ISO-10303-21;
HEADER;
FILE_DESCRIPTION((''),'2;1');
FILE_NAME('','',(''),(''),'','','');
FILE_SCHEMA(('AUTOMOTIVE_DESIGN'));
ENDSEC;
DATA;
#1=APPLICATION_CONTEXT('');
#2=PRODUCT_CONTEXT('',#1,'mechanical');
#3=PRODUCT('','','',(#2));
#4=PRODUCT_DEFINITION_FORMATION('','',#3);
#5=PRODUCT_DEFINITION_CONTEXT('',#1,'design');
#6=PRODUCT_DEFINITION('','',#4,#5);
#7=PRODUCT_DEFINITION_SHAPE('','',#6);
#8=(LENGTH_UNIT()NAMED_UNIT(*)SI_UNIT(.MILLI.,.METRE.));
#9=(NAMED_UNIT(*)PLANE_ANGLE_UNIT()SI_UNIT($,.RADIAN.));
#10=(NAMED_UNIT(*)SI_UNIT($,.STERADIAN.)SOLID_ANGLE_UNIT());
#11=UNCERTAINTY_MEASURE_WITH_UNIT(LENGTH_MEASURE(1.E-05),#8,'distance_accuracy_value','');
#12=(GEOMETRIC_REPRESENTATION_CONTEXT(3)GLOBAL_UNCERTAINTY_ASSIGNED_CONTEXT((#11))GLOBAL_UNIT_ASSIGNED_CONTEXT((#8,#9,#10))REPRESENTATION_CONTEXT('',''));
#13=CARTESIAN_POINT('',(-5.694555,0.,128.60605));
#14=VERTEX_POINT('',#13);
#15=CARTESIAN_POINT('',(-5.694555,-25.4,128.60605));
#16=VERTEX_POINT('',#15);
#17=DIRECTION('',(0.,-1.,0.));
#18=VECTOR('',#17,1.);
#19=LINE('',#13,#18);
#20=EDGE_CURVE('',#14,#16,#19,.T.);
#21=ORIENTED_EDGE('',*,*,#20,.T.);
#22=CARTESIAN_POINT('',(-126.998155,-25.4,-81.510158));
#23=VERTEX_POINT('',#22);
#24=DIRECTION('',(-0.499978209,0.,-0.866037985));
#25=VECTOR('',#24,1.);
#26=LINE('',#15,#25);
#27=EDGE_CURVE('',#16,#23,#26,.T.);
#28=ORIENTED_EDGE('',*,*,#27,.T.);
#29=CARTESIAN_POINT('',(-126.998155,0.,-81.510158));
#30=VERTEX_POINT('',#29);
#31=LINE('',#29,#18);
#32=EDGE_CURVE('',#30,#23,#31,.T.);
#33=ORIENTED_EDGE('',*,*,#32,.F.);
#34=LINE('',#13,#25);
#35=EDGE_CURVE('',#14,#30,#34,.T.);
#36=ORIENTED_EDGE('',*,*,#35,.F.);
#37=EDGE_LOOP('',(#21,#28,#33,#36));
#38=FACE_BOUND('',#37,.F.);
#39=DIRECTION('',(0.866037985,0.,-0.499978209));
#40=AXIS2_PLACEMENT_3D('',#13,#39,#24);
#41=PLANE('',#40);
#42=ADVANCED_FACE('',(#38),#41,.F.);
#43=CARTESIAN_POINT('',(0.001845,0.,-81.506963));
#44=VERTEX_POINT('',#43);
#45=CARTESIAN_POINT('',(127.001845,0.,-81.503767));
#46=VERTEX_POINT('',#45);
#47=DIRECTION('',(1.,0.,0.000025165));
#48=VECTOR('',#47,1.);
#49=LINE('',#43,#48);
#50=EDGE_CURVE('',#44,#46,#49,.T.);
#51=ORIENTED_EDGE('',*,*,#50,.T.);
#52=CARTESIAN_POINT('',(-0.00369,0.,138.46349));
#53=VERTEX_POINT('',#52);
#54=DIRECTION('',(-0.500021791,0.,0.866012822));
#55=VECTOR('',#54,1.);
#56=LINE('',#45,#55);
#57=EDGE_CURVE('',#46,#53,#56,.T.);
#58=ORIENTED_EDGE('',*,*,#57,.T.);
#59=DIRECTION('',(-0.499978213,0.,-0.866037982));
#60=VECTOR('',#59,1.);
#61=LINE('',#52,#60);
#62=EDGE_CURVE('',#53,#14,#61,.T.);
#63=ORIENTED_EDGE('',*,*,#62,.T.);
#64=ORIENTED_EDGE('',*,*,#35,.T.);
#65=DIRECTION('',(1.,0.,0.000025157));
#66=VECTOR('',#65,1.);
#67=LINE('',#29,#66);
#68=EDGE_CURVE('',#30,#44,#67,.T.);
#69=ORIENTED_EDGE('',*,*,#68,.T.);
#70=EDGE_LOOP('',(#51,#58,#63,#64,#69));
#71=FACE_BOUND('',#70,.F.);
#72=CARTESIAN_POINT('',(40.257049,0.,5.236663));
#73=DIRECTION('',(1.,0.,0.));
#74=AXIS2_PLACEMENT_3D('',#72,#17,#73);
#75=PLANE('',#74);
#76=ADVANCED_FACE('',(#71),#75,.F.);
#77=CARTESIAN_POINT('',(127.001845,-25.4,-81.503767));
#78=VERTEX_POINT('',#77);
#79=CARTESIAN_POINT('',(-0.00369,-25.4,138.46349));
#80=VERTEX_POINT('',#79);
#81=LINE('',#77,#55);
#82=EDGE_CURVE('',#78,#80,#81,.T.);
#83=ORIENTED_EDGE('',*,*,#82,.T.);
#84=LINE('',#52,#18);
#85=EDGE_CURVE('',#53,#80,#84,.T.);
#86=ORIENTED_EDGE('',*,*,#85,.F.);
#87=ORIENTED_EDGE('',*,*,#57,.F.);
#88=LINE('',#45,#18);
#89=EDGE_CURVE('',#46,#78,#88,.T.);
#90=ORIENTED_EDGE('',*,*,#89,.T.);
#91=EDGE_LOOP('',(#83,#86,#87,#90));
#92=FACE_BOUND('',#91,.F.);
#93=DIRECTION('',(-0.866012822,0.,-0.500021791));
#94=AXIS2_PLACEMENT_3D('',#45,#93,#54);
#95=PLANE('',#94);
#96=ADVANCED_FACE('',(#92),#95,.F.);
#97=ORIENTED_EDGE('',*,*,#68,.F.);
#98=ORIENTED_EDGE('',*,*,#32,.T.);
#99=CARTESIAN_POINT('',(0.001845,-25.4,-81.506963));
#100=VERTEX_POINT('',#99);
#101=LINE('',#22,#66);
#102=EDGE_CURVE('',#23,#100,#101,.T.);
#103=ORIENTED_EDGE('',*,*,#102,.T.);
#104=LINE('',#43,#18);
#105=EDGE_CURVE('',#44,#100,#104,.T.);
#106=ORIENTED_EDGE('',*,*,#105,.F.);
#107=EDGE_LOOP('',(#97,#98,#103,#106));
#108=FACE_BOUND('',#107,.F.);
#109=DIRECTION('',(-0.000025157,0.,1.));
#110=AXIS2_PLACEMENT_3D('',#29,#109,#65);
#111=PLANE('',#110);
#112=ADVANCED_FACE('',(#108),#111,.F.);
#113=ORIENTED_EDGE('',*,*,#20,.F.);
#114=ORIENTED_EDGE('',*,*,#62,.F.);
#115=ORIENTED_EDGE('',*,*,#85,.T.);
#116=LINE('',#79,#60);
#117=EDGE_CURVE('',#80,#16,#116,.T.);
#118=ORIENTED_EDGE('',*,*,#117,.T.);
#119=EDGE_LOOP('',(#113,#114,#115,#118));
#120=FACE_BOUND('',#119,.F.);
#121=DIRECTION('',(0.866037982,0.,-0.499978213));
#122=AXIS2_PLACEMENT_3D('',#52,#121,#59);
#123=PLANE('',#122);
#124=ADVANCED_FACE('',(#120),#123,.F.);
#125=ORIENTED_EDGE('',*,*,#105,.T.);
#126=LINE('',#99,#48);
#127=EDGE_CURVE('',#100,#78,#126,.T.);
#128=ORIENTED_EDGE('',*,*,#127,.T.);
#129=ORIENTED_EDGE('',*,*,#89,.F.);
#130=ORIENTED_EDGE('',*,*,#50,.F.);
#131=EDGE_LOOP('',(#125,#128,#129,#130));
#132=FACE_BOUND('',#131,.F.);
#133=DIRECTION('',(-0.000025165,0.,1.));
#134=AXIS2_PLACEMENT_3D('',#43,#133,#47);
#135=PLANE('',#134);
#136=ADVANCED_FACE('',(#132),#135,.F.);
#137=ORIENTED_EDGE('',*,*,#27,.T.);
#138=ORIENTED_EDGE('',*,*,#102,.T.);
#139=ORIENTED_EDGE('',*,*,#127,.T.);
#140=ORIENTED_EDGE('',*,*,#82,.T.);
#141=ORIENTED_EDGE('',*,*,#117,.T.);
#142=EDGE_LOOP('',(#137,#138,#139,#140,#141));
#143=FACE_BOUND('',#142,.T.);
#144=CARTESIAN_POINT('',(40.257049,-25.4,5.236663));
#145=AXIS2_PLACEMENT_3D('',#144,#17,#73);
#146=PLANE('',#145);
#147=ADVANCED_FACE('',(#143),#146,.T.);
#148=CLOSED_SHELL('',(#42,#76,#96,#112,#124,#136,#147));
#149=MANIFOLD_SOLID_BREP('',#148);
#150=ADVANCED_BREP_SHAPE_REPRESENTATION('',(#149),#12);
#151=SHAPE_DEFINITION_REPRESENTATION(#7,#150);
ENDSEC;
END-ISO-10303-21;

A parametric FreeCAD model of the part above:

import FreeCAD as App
import Part
import Sketcher
from FreeCAD import Vector
Q = App.Units.Quantity


def add_polygon(sketch, points):
    """Adds a closed chain of lines whose ends are joined by coincident constraints."""
    first, n = sketch.GeometryCount, len(points)
    for a, b in zip(points, points[1:] + points[:1]):
        sketch.addGeometry(Part.LineSegment(App.Vector(*a, 0), App.Vector(*b, 0)), False)
    for i in range(n):
        sketch.addConstraint(Sketcher.Constraint("Coincident", first + i, 2, first + (i + 1) % n, 1))

doc = App.newDocument("Part")
params = doc.addObject("Spreadsheet::Sheet", "Params")
for row, (alias, value) in enumerate([
    ("sketch1_length", "5 in"),
    ("sketch1_length2", "10 in"),
    ("pad1_length", "1 in"),
], start=1):
    params.set(f"A{row}", alias)
    params.set(f"B{row}", "=" + value)
    params.setAlias(f"B{row}", alias)

body = doc.addObject("PartDesign::Body", "Body")

sketch1 = body.newObject("Sketcher::SketchObject", "Sketch")
sketch1.AttachmentSupport = (doc.getObject("XZ_Plane"), [""])
sketch1.MapMode = "FlatFace"
add_polygon(sketch1, [(0, -82), (127, -82), (0, 138), (-6, 129), (-127, -82)])
sketch1.addConstraint(Sketcher.Constraint("Parallel", 2, 3))
sketch1.addConstraint(Sketcher.Constraint("Parallel", 0, 4))
sketch1.addConstraint(Sketcher.Constraint("Equal", 0, 4))
sketch1.addConstraint(Sketcher.Constraint("Distance", 0, Q("5 in")))
sketch1.addConstraint(Sketcher.Constraint("Distance", 1, Q("10 in")))
sketch1.addConstraint(Sketcher.Constraint("DistanceX", 2, 2, 0, 2, Q("132.6964 mm")))
sketch1.addConstraint(Sketcher.Constraint("DistanceX", 1, 2, -1, 1, Q("0.00369 mm")))
sketch1.addConstraint(Sketcher.Constraint("DistanceY", -1, 1, 1, 2, Q("138.46349 mm")))
sketch1.addConstraint(Sketcher.Constraint("DistanceY", -1, 1, 2, 2, Q("128.60605 mm")))
sketch1.addConstraint(Sketcher.Constraint("DistanceY", 3, 2, -1, 1, Q("81.510158 mm")))
sketch1.setExpression("Constraints[8]", "Params.sketch1_length")
sketch1.setExpression("Constraints[9]", "Params.sketch1_length2")
pad1 = body.newObject("PartDesign::Pad", "Pad")
pad1.Profile = sketch1
pad1.setExpression("Length", "Params.pad1_length")

doc.recompute()
